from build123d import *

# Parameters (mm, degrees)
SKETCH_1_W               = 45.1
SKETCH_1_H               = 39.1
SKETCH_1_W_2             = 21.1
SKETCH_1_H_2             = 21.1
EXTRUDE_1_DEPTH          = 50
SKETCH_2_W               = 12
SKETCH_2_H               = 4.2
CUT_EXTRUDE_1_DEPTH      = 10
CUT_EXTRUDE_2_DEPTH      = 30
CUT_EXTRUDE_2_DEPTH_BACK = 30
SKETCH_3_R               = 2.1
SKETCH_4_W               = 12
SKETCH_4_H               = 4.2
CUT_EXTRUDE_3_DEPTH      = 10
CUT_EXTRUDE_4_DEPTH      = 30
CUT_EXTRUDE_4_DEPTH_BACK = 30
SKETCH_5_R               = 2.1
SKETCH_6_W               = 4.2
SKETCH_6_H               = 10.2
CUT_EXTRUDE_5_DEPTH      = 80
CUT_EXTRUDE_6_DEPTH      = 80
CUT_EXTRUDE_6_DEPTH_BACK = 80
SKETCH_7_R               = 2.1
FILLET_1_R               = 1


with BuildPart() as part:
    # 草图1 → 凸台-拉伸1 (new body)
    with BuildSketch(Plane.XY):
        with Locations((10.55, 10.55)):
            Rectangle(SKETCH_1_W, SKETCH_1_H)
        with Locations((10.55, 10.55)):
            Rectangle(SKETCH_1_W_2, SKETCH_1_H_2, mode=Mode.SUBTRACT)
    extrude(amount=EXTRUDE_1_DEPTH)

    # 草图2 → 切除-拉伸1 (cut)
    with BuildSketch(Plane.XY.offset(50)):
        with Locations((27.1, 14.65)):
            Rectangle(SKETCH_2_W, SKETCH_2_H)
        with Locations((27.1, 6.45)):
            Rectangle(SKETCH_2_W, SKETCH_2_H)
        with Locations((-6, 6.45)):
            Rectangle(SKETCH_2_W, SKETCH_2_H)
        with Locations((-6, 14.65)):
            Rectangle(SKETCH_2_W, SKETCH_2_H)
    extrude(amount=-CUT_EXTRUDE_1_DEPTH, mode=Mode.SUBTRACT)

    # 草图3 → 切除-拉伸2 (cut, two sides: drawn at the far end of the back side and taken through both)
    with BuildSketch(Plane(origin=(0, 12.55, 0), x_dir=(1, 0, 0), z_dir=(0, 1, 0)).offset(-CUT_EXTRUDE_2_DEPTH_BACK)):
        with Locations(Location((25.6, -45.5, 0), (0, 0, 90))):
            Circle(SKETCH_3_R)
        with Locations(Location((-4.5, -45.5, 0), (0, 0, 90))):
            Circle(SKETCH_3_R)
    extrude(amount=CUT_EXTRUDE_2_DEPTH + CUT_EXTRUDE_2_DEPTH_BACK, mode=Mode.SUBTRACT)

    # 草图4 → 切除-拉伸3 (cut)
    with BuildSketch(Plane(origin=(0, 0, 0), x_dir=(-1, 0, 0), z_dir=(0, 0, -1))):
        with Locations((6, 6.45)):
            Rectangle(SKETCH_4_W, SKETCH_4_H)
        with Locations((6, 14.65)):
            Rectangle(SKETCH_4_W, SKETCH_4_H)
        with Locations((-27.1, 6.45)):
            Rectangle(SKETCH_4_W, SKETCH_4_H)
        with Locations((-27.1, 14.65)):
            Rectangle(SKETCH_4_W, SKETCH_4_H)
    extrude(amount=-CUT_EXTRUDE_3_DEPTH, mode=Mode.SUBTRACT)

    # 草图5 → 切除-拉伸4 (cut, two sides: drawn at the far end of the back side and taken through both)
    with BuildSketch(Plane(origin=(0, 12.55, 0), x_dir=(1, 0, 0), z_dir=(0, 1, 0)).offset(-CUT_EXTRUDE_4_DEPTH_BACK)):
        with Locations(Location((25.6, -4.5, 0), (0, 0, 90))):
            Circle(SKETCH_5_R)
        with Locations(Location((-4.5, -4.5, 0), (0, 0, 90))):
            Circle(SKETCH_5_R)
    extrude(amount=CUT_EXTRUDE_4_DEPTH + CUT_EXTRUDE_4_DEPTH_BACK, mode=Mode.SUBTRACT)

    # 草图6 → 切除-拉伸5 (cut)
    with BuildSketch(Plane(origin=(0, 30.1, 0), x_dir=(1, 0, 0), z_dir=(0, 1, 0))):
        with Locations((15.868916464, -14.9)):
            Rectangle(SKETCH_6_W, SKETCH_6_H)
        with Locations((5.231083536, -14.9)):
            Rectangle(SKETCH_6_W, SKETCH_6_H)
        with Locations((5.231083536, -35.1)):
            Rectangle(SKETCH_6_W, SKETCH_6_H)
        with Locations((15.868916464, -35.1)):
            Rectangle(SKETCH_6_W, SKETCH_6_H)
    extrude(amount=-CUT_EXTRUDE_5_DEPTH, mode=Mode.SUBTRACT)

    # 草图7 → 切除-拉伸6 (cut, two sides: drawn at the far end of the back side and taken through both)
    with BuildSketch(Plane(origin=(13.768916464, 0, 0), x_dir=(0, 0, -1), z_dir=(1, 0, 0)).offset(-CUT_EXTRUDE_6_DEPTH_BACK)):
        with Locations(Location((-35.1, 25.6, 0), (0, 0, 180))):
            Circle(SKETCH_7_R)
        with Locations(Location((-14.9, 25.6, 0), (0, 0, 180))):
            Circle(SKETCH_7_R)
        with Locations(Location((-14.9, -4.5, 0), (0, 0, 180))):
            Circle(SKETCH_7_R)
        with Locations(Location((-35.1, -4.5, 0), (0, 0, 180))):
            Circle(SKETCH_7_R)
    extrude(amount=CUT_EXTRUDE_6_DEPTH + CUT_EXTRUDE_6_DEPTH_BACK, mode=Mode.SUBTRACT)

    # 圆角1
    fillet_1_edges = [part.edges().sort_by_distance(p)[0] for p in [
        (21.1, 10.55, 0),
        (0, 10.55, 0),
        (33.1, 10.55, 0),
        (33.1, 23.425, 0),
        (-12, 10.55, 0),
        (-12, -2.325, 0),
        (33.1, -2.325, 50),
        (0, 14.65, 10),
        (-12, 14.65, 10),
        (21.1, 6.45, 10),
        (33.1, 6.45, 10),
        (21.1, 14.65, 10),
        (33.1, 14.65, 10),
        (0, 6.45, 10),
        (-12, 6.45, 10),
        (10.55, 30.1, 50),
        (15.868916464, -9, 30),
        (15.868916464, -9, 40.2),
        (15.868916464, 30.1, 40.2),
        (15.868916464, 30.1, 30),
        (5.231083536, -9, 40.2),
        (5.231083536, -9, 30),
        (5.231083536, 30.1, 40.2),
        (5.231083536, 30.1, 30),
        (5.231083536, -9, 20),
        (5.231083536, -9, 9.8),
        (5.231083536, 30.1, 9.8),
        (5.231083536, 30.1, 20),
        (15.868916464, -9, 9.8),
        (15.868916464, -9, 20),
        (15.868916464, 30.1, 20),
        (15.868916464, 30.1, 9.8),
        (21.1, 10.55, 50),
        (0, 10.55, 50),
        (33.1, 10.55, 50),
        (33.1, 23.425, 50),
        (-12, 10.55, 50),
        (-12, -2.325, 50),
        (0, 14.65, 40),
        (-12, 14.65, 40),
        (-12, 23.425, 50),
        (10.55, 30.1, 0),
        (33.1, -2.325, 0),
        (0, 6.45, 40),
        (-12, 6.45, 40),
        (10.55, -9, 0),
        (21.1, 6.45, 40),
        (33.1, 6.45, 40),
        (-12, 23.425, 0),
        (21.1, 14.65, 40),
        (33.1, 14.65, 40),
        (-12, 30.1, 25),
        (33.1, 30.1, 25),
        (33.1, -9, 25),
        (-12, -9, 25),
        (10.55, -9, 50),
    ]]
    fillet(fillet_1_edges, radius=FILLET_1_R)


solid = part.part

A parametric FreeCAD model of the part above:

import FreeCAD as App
import Part
import Sketcher


def edges_at(feature, points):
    """Names of the edges that pass closest to the given points."""
    edges = feature.Shape.Edges
    near = lambda p: min(range(len(edges)), key=lambda i: edges[i].distToShape(Part.Vertex(*p))[0])
    return sorted({f"Edge{near(p) + 1}" for p in points})


def add_polygon(sketch, points):
    """Adds a closed chain of lines whose ends are joined by coincident constraints."""
    first, n = sketch.GeometryCount, len(points)
    for a, b in zip(points, points[1:] + points[:1]):
        sketch.addGeometry(Part.LineSegment(App.Vector(*a, 0), App.Vector(*b, 0)), False)
    for i in range(n):
        sketch.addConstraint(Sketcher.Constraint("Coincident", first + i, 2, first + (i + 1) % n, 1))

doc = App.newDocument("Part")
body = doc.addObject("PartDesign::Body", "Body")

# Sketch on XY plane
sketch1 = body.newObject("Sketcher::SketchObject", "Sketch")
sketch1.AttachmentSupport = (doc.getObject("XY_Plane"), [""])
sketch1.MapMode = "FlatFace"
add_polygon(sketch1, [(-12, 30), (-12, -9), (33, -9), (33, 30)])  # lines 0-3
add_polygon(sketch1, [(21, 0), (0, 0), (0, 21), (21, 21)])  # lines 4-7
sketch1.addConstraint(Sketcher.Constraint("Vertical", 0))
sketch1.addConstraint(Sketcher.Constraint("Horizontal", 1))
sketch1.addConstraint(Sketcher.Constraint("Vertical", 2))
sketch1.addConstraint(Sketcher.Constraint("Horizontal", 3))
sketch1.addConstraint(Sketcher.Constraint("Horizontal", 4))
sketch1.addConstraint(Sketcher.Constraint("Vertical", 5))
sketch1.addConstraint(Sketcher.Constraint("Horizontal", 6))
sketch1.addConstraint(Sketcher.Constraint("Vertical", 7))
sketch1.addConstraint(Sketcher.Constraint("Coincident", 4, 2, -1, 1))
sketch1.addConstraint(Sketcher.Constraint("Equal", 6, 5))
sketch1.addConstraint(Sketcher.Constraint("DistanceX", 1, 1, 1, 2, 45.1))
sketch1.addConstraint(Sketcher.Constraint("DistanceX", 4, 2, 4, 1, 21.1))
sketch1.addConstraint(Sketcher.Constraint("DistanceY", 0, 2, 0, 1, 39.1))
sketch1.addConstraint(Sketcher.Constraint("DistanceX", 0, 2, -1, 1, 12.0))
sketch1.addConstraint(Sketcher.Constraint("DistanceY", 0, 2, -1, 1, 9.0))
pad1 = body.newObject("PartDesign::Pad", "Pad")
pad1.Profile = sketch1
pad1.Length = 50

# Sketch on XY plane
sketch2 = body.newObject("Sketcher::SketchObject", "Sketch001")
sketch2.AttachmentSupport = (doc.getObject("XY_Plane"), [""])
sketch2.MapMode = "FlatFace"
sketch2.AttachmentOffset = App.Placement(App.Vector(0, 0, 50), App.Rotation())
add_polygon(sketch2, [(21.1, 16.8), (21.1, 12.6), (33.1, 12.6), (33.1, 16.8)])  # lines 0-3
add_polygon(sketch2, [(21.1, 8.6), (21.1, 4.3), (33.1, 4.3), (33.1, 8.6)])  # lines 4-7
add_polygon(sketch2, [(-12, 8.6), (-12, 4.3), (0, 4.3), (0, 8.6)])  # lines 8-11
add_polygon(sketch2, [(-12, 16.8), (-12, 12.6), (0, 12.6), (0, 16.8)])  # lines 12-15
sketch2.addConstraint(Sketcher.Constraint("Vertical", 0))
sketch2.addConstraint(Sketcher.Constraint("Horizontal", 1))
sketch2.addConstraint(Sketcher.Constraint("Vertical", 2))
sketch2.addConstraint(Sketcher.Constraint("Horizontal", 3))
sketch2.addConstraint(Sketcher.Constraint("Vertical", 4))
sketch2.addConstraint(Sketcher.Constraint("Horizontal", 5))
sketch2.addConstraint(Sketcher.Constraint("Vertical", 6))
sketch2.addConstraint(Sketcher.Constraint("Horizontal", 7))
sketch2.addConstraint(Sketcher.Constraint("Vertical", 8))
sketch2.addConstraint(Sketcher.Constraint("Horizontal", 9))
sketch2.addConstraint(Sketcher.Constraint("Vertical", 10))
sketch2.addConstraint(Sketcher.Constraint("Horizontal", 11))
sketch2.addConstraint(Sketcher.Constraint("Vertical", 12))
sketch2.addConstraint(Sketcher.Constraint("Horizontal", 13))
sketch2.addConstraint(Sketcher.Constraint("Vertical", 14))
sketch2.addConstraint(Sketcher.Constraint("Horizontal", 15))
sketch2.addConstraint(Sketcher.Constraint("PointOnObject", 9, 2, -2))
sketch2.addConstraint(Sketcher.Constraint("PointOnObject", 13, 2, -2))
sketch2.addConstraint(Sketcher.Constraint("Horizontal", 5, 2, 8, 2))
sketch2.addConstraint(Sketcher.Constraint("Horizontal", 7, 2, 10, 2))
sketch2.addConstraint(Sketcher.Constraint("Horizontal", 1, 2, 12, 2))
sketch2.addConstraint(Sketcher.Constraint("Horizontal", 3, 2, 14, 2))
sketch2.addConstraint(Sketcher.Constraint("Vertical", 3, 2, 4, 2))
sketch2.addConstraint(Sketcher.Constraint("Vertical", 2, 2, 5, 2))
sketch2.addConstraint(Sketcher.Constraint("Vertical", 11, 2, 12, 2))
sketch2.addConstraint(Sketcher.Constraint("Equal", 7, 9))
sketch2.addConstraint(Sketcher.Constraint("Equal", 2, 4))
sketch2.addConstraint(Sketcher.Constraint("DistanceX", 1, 1, 1, 2, 12.0))
sketch2.addConstraint(Sketcher.Constraint("DistanceY", 0, 2, 0, 1, 4.2))
sketch2.addConstraint(Sketcher.Constraint("DistanceY", 6, 2, 1, 2, 4.0))
sketch2.addConstraint(Sketcher.Constraint("DistanceX", -1, 1, 0, 2, 21.1))
sketch2.addConstraint(Sketcher.Constraint("DistanceY", -1, 1, 0, 2, 12.55))
pocket1 = body.newObject("PartDesign::Pocket", "Pocket")
pocket1.Profile = sketch2
pocket1.Length = 10

# Sketch on XZ plane
sketch3 = body.newObject("Sketcher::SketchObject", "Sketch002")
sketch3.AttachmentSupport = (doc.getObject("XZ_Plane"), [""])
sketch3.MapMode = "FlatFace"
sketch3.AttachmentOffset = App.Placement(App.Vector(0, 0, -12.55), App.Rotation())
sketch3.addGeometry(Part.Circle(App.Vector(25.6, 45.5, 0), App.Vector(0, 0, 1), 2.1), False)
sketch3.addGeometry(Part.Circle(App.Vector(-4.5, 45.5, 0), App.Vector(0, 0, 1), 2.1), False)
sketch3.addConstraint(Sketcher.Constraint("Equal", 0, 1))
sketch3.addConstraint(Sketcher.Constraint("Horizontal", 0, 3, 1, 3))
sketch3.addConstraint(Sketcher.Constraint("Diameter", 0, 4.2))
sketch3.addConstraint(Sketcher.Constraint("DistanceX", -1, 1, 0, 3, 25.6))
sketch3.addConstraint(Sketcher.Constraint("DistanceY", -1, 1, 0, 3, 45.5))
sketch3.addConstraint(Sketcher.Constraint("DistanceX", 1, 3, -1, 1, 4.5))
pocket2 = body.newObject("PartDesign::Pocket", "Pocket001")
pocket2.Profile = sketch3
pocket2.Type = "ThroughAll"
pocket2.Midplane = True

# Sketch on XY plane
sketch4 = body.newObject("Sketcher::SketchObject", "Sketch003")
sketch4.AttachmentSupport = (doc.getObject("XY_Plane"), [""])
sketch4.MapMode = "FlatFace"
add_polygon(sketch4, [(0, 8.6), (0, 4.3), (-12, 4.3), (-12, 8.6)])  # lines 0-3
add_polygon(sketch4, [(0, 16.8), (0, 12.6), (-12, 12.6), (-12, 16.8)])  # lines 4-7
add_polygon(sketch4, [(33.1, 8.6), (33.1, 4.3), (21.1, 4.3), (21.1, 8.6)])  # lines 8-11
add_polygon(sketch4, [(33.1, 16.8), (33.1, 12.6), (21.1, 12.6), (21.1, 16.8)])  # lines 12-15
sketch4.addConstraint(Sketcher.Constraint("Vertical", 0))
sketch4.addConstraint(Sketcher.Constraint("Horizontal", 1))
sketch4.addConstraint(Sketcher.Constraint("Vertical", 2))
sketch4.addConstraint(Sketcher.Constraint("Horizontal", 3))
sketch4.addConstraint(Sketcher.Constraint("Vertical", 4))
sketch4.addConstraint(Sketcher.Constraint("Horizontal", 5))
sketch4.addConstraint(Sketcher.Constraint("Vertical", 6))
sketch4.addConstraint(Sketcher.Constraint("Horizontal", 7))
sketch4.addConstraint(Sketcher.Constraint("Vertical", 8))
sketch4.addConstraint(Sketcher.Constraint("Horizontal", 9))
sketch4.addConstraint(Sketcher.Constraint("Vertical", 10))
sketch4.addConstraint(Sketcher.Constraint("Horizontal", 11))
sketch4.addConstraint(Sketcher.Constraint("Vertical", 12))
sketch4.addConstraint(Sketcher.Constraint("Horizontal", 13))
sketch4.addConstraint(Sketcher.Constraint("Vertical", 14))
sketch4.addConstraint(Sketcher.Constraint("Horizontal", 15))
sketch4.addConstraint(Sketcher.Constraint("PointOnObject", 0, 2, -2))
sketch4.addConstraint(Sketcher.Constraint("PointOnObject", 4, 2, -2))
sketch4.addConstraint(Sketcher.Constraint("Horizontal", 1, 2, 8, 2))
sketch4.addConstraint(Sketcher.Constraint("Horizontal", 3, 2, 10, 2))
sketch4.addConstraint(Sketcher.Constraint("Horizontal", 5, 2, 12, 2))
sketch4.addConstraint(Sketcher.Constraint("Horizontal", 7, 2, 14, 2))
sketch4.addConstraint(Sketcher.Constraint("Vertical", 2, 2, 5, 2))
sketch4.addConstraint(Sketcher.Constraint("Vertical", 11, 2, 12, 2))
sketch4.addConstraint(Sketcher.Constraint("Vertical", 10, 2, 13, 2))
sketch4.addConstraint(Sketcher.Constraint("Equal", 7, 9))
sketch4.addConstraint(Sketcher.Constraint("Equal", 2, 4))
sketch4.addConstraint(Sketcher.Constraint("DistanceX", 1, 2, 1, 1, 12.0))
sketch4.addConstraint(Sketcher.Constraint("DistanceY", 0, 2, 0, 1, 4.2))
sketch4.addConstraint(Sketcher.Constraint("DistanceY", 3, 2, 4, 2, 4.0))
sketch4.addConstraint(Sketcher.Constraint("DistanceX", -1, 1, 8, 2, 33.1))
sketch4.addConstraint(Sketcher.Constraint("DistanceY", -1, 1, 0, 2, 4.35))
pocket3 = body.newObject("PartDesign::Pocket", "Pocket002")
pocket3.Profile = sketch4
pocket3.Length = 10
pocket3.Reversed = True

# Sketch on XZ plane
sketch5 = body.newObject("Sketcher::SketchObject", "Sketch004")
sketch5.AttachmentSupport = (doc.getObject("XZ_Plane"), [""])
sketch5.MapMode = "FlatFace"
sketch5.AttachmentOffset = App.Placement(App.Vector(0, 0, -12.55), App.Rotation())
sketch5.addGeometry(Part.Circle(App.Vector(25.6, 4.5, 0), App.Vector(0, 0, 1), 2.1), False)
sketch5.addGeometry(Part.Circle(App.Vector(-4.5, 4.5, 0), App.Vector(0, 0, 1), 2.1), False)
sketch5.addConstraint(Sketcher.Constraint("Equal", 0, 1))
sketch5.addConstraint(Sketcher.Constraint("Horizontal", 0, 3, 1, 3))
sketch5.addConstraint(Sketcher.Constraint("Diameter", 0, 4.2))
sketch5.addConstraint(Sketcher.Constraint("DistanceX", -1, 1, 0, 3, 25.6))
sketch5.addConstraint(Sketcher.Constraint("DistanceY", -1, 1, 0, 3, 4.5))
sketch5.addConstraint(Sketcher.Constraint("DistanceX", 1, 3, -1, 1, 4.5))
pocket4 = body.newObject("PartDesign::Pocket", "Pocket003")
pocket4.Profile = sketch5
pocket4.Type = "ThroughAll"
pocket4.Midplane = True

# Sketch on XZ plane
sketch6 = body.newObject("Sketcher::SketchObject", "Sketch005")
sketch6.AttachmentSupport = (doc.getObject("XZ_Plane"), [""])
sketch6.MapMode = "FlatFace"
sketch6.AttachmentOffset = App.Placement(App.Vector(0, 0, -30.1), App.Rotation())
add_polygon(sketch6, [(13.8, 9.8), (13.8, 20), (18, 20), (18, 9.8)])  # lines 0-3
add_polygon(sketch6, [(3.1, 9.8), (3.1, 20), (7.3, 20), (7.3, 9.8)])  # lines 4-7
add_polygon(sketch6, [(3.1, 30), (3.1, 40.2), (7.3, 40.2), (7.3, 30)])  # lines 8-11
add_polygon(sketch6, [(13.8, 30), (13.8, 40.2), (18, 40.2), (18, 30)])  # lines 12-15
sketch6.addConstraint(Sketcher.Constraint("Vertical", 0))
sketch6.addConstraint(Sketcher.Constraint("Horizontal", 1))
sketch6.addConstraint(Sketcher.Constraint("Vertical", 2))
sketch6.addConstraint(Sketcher.Constraint("Horizontal", 3))
sketch6.addConstraint(Sketcher.Constraint("Vertical", 4))
sketch6.addConstraint(Sketcher.Constraint("Horizontal", 5))
sketch6.addConstraint(Sketcher.Constraint("Vertical", 6))
sketch6.addConstraint(Sketcher.Constraint("Horizontal", 7))
sketch6.addConstraint(Sketcher.Constraint("Vertical", 8))
sketch6.addConstraint(Sketcher.Constraint("Horizontal", 9))
sketch6.addConstraint(Sketcher.Constraint("Vertical", 10))
sketch6.addConstraint(Sketcher.Constraint("Horizontal", 11))
sketch6.addConstraint(Sketcher.Constraint("Vertical", 12))
sketch6.addConstraint(Sketcher.Constraint("Horizontal", 13))
sketch6.addConstraint(Sketcher.Constraint("Vertical", 14))
sketch6.addConstraint(Sketcher.Constraint("Horizontal", 15))
sketch6.addConstraint(Sketcher.Constraint("Horizontal", 1, 2, 4, 2))
sketch6.addConstraint(Sketcher.Constraint("Horizontal", 3, 2, 6, 2))
sketch6.addConstraint(Sketcher.Constraint("Horizontal", 9, 2, 12, 2))
sketch6.addConstraint(Sketcher.Constraint("Horizontal", 11, 2, 14, 2))
sketch6.addConstraint(Sketcher.Constraint("Vertical", 7, 2, 8, 2))
sketch6.addConstraint(Sketcher.Constraint("Vertical", 6, 2, 9, 2))
sketch6.addConstraint(Sketcher.Constraint("Vertical", 3, 2, 12, 2))
sketch6.addConstraint(Sketcher.Constraint("Vertical", 2, 2, 13, 2))
sketch6.addConstraint(Sketcher.Constraint("Equal", 3, 5))
sketch6.addConstraint(Sketcher.Constraint("Equal", 6, 8))
sketch6.addConstraint(Sketcher.Constraint("DistanceX", 1, 1, 1, 2, 4.2))
sketch6.addConstraint(Sketcher.Constraint("DistanceY", 0, 1, 0, 2, 10.2))
sketch6.addConstraint(Sketcher.Constraint("DistanceY", -1, 1, 0, 2, 20.0))
sketch6.addConstraint(Sketcher.Constraint("DistanceY", -1, 1, 10, 2, 30.0))
sketch6.addConstraint(Sketcher.Constraint("DistanceX", -1, 1, 0, 2, 13.768916))
sketch6.addConstraint(Sketcher.Constraint("DistanceX", -1, 1, 4, 2, 3.131084))
pocket5 = body.newObject("PartDesign::Pocket", "Pocket004")
pocket5.Profile = sketch6
pocket5.Length = 80
pocket5.Reversed = True

# Sketch on YZ plane
sketch7 = body.newObject("Sketcher::SketchObject", "Sketch006")
sketch7.AttachmentSupport = (doc.getObject("YZ_Plane"), [""])
sketch7.MapMode = "FlatFace"
sketch7.AttachmentOffset = App.Placement(App.Vector(0, 0, 13.768916), App.Rotation())
sketch7.addGeometry(Part.Circle(App.Vector(25.6, 35.1, 0), App.Vector(0, 0, 1), 2.1), False)
sketch7.addGeometry(Part.Circle(App.Vector(25.6, 14.9, 0), App.Vector(0, 0, 1), 2.1), False)
sketch7.addGeometry(Part.Circle(App.Vector(-4.5, 14.9, 0), App.Vector(0, 0, 1), 2.1), False)
sketch7.addGeometry(Part.Circle(App.Vector(-4.5, 35.1, 0), App.Vector(0, 0, 1), 2.1), False)
sketch7.addConstraint(Sketcher.Constraint("Equal", 0, 1))
sketch7.addConstraint(Sketcher.Constraint("Equal", 1, 2))
sketch7.addConstraint(Sketcher.Constraint("Equal", 2, 3))
sketch7.addConstraint(Sketcher.Constraint("Horizontal", 1, 3, 2, 3))
sketch7.addConstraint(Sketcher.Constraint("Horizontal", 0, 3, 3, 3))
sketch7.addConstraint(Sketcher.Constraint("Vertical", 0, 3, 1, 3))
sketch7.addConstraint(Sketcher.Constraint("Vertical", 2, 3, 3, 3))
sketch7.addConstraint(Sketcher.Constraint("Diameter", 0, 4.2))
sketch7.addConstraint(Sketcher.Constraint("DistanceX", -1, 1, 0, 3, 25.6))
sketch7.addConstraint(Sketcher.Constraint("DistanceY", -1, 1, 0, 3, 35.1))
sketch7.addConstraint(Sketcher.Constraint("DistanceY", -1, 1, 1, 3, 14.9))
sketch7.addConstraint(Sketcher.Constraint("DistanceX", 2, 3, -1, 1, 4.5))
pocket6 = body.newObject("PartDesign::Pocket", "Pocket005")
pocket6.Profile = sketch7
pocket6.Type = "ThroughAll"
pocket6.Midplane = True
doc.recompute()

fillet = body.newObject("PartDesign::Fillet", "Fillet")
fillet.Base = (pocket6, edges_at(pocket6, [
    (21.1, 10.55, 0),
    (0, 10.55, 0),
    (33.1, 10.55, 0),
    (33.1, 23.425, 0),
    (-12, 10.55, 0),
    (-12, -2.325, 0),
    (33.1, -2.325, 50),
    (0, 14.65, 10),
    (-12, 14.65, 10),
    (21.1, 6.45, 10),
    (33.1, 6.45, 10),
    (21.1, 14.65, 10),
    (33.1, 14.65, 10),
    (0, 6.45, 10),
    (-12, 6.45, 10),
    (10.55, 30.1, 50),
    (15.869, -9, 30),
    (15.869, -9, 40.2),
    (15.869, 30.1, 40.2),
    (15.869, 30.1, 30),
    (5.231, -9, 40.2),
    (5.231, -9, 30),
    (5.231, 30.1, 40.2),
    (5.231, 30.1, 30),
    (5.231, -9, 20),
    (5.231, -9, 9.8),
    (5.231, 30.1, 9.8),
    (5.231, 30.1, 20),
    (15.869, -9, 9.8),
    (15.869, -9, 20),
    (15.869, 30.1, 20),
    (15.869, 30.1, 9.8),
    (21.1, 10.55, 50),
    (0, 10.55, 50),
    (33.1, 10.55, 50),
    (33.1, 23.425, 50),
    (-12, 10.55, 50),
    (-12, -2.325, 50),
    (0, 14.65, 40),
    (-12, 14.65, 40),
    (-12, 23.425, 50),
    (10.55, 30.1, 0),
    (33.1, -2.325, 0),
    (0, 6.45, 40),
    (-12, 6.45, 40),
    (10.55, -9, 0),
    (21.1, 6.45, 40),
    (33.1, 6.45, 40),
    (-12, 23.425, 0),
    (21.1, 14.65, 40),
    (33.1, 14.65, 40),
    (-12, 30.1, 25),
    (33.1, 30.1, 25),
    (33.1, -9, 25),
    (-12, -9, 25),
    (10.55, -9, 50),
]))
fillet.Radius = 1

doc.recompute()
